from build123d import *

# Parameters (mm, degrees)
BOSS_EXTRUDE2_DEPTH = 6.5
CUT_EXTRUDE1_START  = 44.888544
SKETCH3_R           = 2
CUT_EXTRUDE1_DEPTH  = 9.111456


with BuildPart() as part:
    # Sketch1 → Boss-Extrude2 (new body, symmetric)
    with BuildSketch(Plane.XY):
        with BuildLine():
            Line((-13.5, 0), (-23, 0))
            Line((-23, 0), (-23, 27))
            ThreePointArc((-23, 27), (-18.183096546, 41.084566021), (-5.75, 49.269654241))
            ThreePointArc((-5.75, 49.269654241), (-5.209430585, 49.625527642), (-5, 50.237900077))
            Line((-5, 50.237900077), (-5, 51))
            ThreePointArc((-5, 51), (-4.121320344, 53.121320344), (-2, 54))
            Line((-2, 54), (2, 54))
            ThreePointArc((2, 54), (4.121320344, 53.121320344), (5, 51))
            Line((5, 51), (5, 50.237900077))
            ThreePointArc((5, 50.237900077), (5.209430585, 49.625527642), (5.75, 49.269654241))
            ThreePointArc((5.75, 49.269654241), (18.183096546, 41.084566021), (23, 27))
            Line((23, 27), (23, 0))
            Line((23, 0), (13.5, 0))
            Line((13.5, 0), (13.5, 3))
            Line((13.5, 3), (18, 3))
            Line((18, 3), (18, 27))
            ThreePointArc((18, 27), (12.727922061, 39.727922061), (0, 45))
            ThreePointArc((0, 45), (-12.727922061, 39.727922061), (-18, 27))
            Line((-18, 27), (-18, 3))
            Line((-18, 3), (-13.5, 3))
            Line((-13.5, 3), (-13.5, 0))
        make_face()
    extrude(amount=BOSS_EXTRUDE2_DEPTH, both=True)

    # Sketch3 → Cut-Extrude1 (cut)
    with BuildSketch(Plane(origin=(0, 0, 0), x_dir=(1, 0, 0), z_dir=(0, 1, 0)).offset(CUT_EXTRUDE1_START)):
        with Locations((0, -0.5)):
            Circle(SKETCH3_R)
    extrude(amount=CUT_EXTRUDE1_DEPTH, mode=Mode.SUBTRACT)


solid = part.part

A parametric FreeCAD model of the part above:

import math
import FreeCAD as App
import Part
import Sketcher
Q = App.Units.Quantity

doc = App.newDocument("Part")
params = doc.addObject("Spreadsheet::Sheet", "Params")
for row, (alias, value) in enumerate([
    ("sketch1_radius", "18 mm"),
    ("sketch1_radius2", "23 mm"),
    ("sketch1_radius3", "1 mm"),
    ("sketch1_radius4", "3 mm"),
    ("sketch1_width", "4 mm"),
    ("pad1_length", "13 mm"),
    ("sketch2_diameter", "4 mm"),
    ("pocket1_length", "9.111456 mm"),
], start=1):
    params.set(f"A{row}", alias)
    params.set(f"B{row}", "=" + value)
    params.setAlias(f"B{row}", alias)

body = doc.addObject("PartDesign::Body", "Body")

sketch1 = doc.addObject("Sketcher::SketchObject", "Sketch")
body.addObject(sketch1)
sketch1.AttachmentSupport = (doc.XY_Plane, [""])
sketch1.MapMode = "FlatFace"
sketch1.addGeometry(Part.LineSegment(App.Vector(-23, 0, 0), App.Vector(-13.5, 0, 0)), False)
sketch1.addGeometry(Part.LineSegment(App.Vector(-13.5, 0, 0), App.Vector(-13.5, 3, 0)), False)
sketch1.addGeometry(Part.LineSegment(App.Vector(-13.5, 3, 0), App.Vector(-18, 3, 0)), False)
sketch1.addGeometry(Part.LineSegment(App.Vector(-18, 3, 0), App.Vector(-18, 27, 0)), False)
sketch1.addGeometry(Part.ArcOfCircle(Part.Circle(App.Vector(0, 27, 0), App.Vector(0, 0, 1), 18), math.radians(90), math.radians(180)), False)
sketch1.addGeometry(Part.ArcOfCircle(Part.Circle(App.Vector(0, 27, 0), App.Vector(0, 0, 1), 18), math.radians(0), math.radians(90)), False)
sketch1.addGeometry(Part.LineSegment(App.Vector(18, 27, 0), App.Vector(18, 3, 0)), False)
sketch1.addGeometry(Part.LineSegment(App.Vector(18, 3, 0), App.Vector(13.5, 3, 0)), False)
sketch1.addGeometry(Part.LineSegment(App.Vector(13.5, 3, 0), App.Vector(13.5, 0, 0)), False)
sketch1.addGeometry(Part.LineSegment(App.Vector(13.5, 0, 0), App.Vector(23, 0, 0)), False)
sketch1.addGeometry(Part.LineSegment(App.Vector(23, 0, 0), App.Vector(23, 27, 0)), False)
sketch1.addGeometry(Part.ArcOfCircle(Part.Circle(App.Vector(0, 27, 0), App.Vector(0, 0, 1), 23), math.radians(0), math.radians(76)), False)
sketch1.addGeometry(Part.ArcOfCircle(Part.Circle(App.Vector(6, 50.2, 0), App.Vector(0, 0, 1), 1), math.radians(-180), math.radians(-104)), False)
sketch1.addGeometry(Part.LineSegment(App.Vector(5, 50.2, 0), App.Vector(5, 51, 0)), False)
sketch1.addGeometry(Part.ArcOfCircle(Part.Circle(App.Vector(2, 51, 0), App.Vector(0, 0, 1), 3), math.radians(0), math.radians(90)), False)
sketch1.addGeometry(Part.LineSegment(App.Vector(2, 54, 0), App.Vector(-2, 54, 0)), False)
sketch1.addGeometry(Part.ArcOfCircle(Part.Circle(App.Vector(-2, 51, 0), App.Vector(0, 0, 1), 3), math.radians(90), math.radians(180)), False)
sketch1.addGeometry(Part.LineSegment(App.Vector(-5, 51, 0), App.Vector(-5, 50.2, 0)), False)
sketch1.addGeometry(Part.ArcOfCircle(Part.Circle(App.Vector(-6, 50.2, 0), App.Vector(0, 0, 1), 1), math.radians(-76), math.radians(0)), False)
sketch1.addGeometry(Part.ArcOfCircle(Part.Circle(App.Vector(0, 27, 0), App.Vector(0, 0, 1), 23), math.radians(104), math.radians(180)), False)
sketch1.addGeometry(Part.LineSegment(App.Vector(-23, 27, 0), App.Vector(-23, 0, 0)), False)
sketch1.addConstraint(Sketcher.Constraint("Coincident", 0, 2, 1, 1))
sketch1.addConstraint(Sketcher.Constraint("Coincident", 1, 2, 2, 1))
sketch1.addConstraint(Sketcher.Constraint("Coincident", 2, 2, 3, 1))
sketch1.addConstraint(Sketcher.Constraint("Tangent", 3, 2, 4, 2))
sketch1.addConstraint(Sketcher.Constraint("Tangent", 4, 1, 5, 2))
sketch1.addConstraint(Sketcher.Constraint("Tangent", 5, 1, 6, 1))
sketch1.addConstraint(Sketcher.Constraint("Coincident", 6, 2, 7, 1))
sketch1.addConstraint(Sketcher.Constraint("Coincident", 7, 2, 8, 1))
sketch1.addConstraint(Sketcher.Constraint("Coincident", 8, 2, 9, 1))
sketch1.addConstraint(Sketcher.Constraint("Coincident", 9, 2, 10, 1))
sketch1.addConstraint(Sketcher.Constraint("Tangent", 10, 2, 11, 1))
sketch1.addConstraint(Sketcher.Constraint("Tangent", 11, 2, 12, 2))
sketch1.addConstraint(Sketcher.Constraint("Tangent", 12, 1, 13, 1))
sketch1.addConstraint(Sketcher.Constraint("Tangent", 13, 2, 14, 1))
sketch1.addConstraint(Sketcher.Constraint("Tangent", 14, 2, 15, 1))
sketch1.addConstraint(Sketcher.Constraint("Tangent", 15, 2, 16, 1))
sketch1.addConstraint(Sketcher.Constraint("Tangent", 16, 2, 17, 1))
sketch1.addConstraint(Sketcher.Constraint("Tangent", 17, 2, 18, 2))
sketch1.addConstraint(Sketcher.Constraint("Tangent", 18, 1, 19, 1))
sketch1.addConstraint(Sketcher.Constraint("Tangent", 19, 2, 20, 1))
sketch1.addConstraint(Sketcher.Constraint("Coincident", 20, 2, 0, 1))
sketch1.addConstraint(Sketcher.Constraint("Horizontal", 0))
sketch1.addConstraint(Sketcher.Constraint("Vertical", 1))
sketch1.addConstraint(Sketcher.Constraint("Horizontal", 2))
sketch1.addConstraint(Sketcher.Constraint("Vertical", 3))
sketch1.addConstraint(Sketcher.Constraint("Vertical", 6))
sketch1.addConstraint(Sketcher.Constraint("Horizontal", 7))
sketch1.addConstraint(Sketcher.Constraint("Vertical", 8))
sketch1.addConstraint(Sketcher.Constraint("Horizontal", 9))
sketch1.addConstraint(Sketcher.Constraint("Vertical", 10))
sketch1.addConstraint(Sketcher.Constraint("Vertical", 13))
sketch1.addConstraint(Sketcher.Constraint("Horizontal", 15))
sketch1.addConstraint(Sketcher.Constraint("Vertical", 17))
sketch1.addConstraint(Sketcher.Constraint("Vertical", 20))
sketch1.addConstraint(Sketcher.Constraint("Coincident", 11, 3, 4, 3))
sketch1.addConstraint(Sketcher.Constraint("Coincident", 19, 3, 4, 3))
sketch1.addConstraint(Sketcher.Constraint("Equal", 4, 5))
sketch1.addConstraint(Sketcher.Constraint("Equal", 14, 16))
sketch1.addConstraint(Sketcher.Constraint("Equal", 12, 18))
sketch1.addConstraint(Sketcher.Constraint("Equal", 11, 19))
sketch1.addConstraint(Sketcher.Constraint("Symmetric", 0, 2, 8, 2, -1, 1))
sketch1.addConstraint(Sketcher.Constraint("Symmetric", 12, 3, 18, 3, -2))
sketch1.addConstraint(Sketcher.Constraint("PointOnObject", 0, 2, -1))
sketch1.addConstraint(Sketcher.Constraint("PointOnObject", 4, 1, -2))
sketch1.addConstraint(Sketcher.Constraint("Horizontal", 2, 2, 6, 2))
sketch1.addConstraint(Sketcher.Constraint("Radius", 4, Q("18 mm")))
sketch1.addConstraint(Sketcher.Constraint("Radius", 11, Q("23 mm")))
sketch1.addConstraint(Sketcher.Constraint("Radius", 12, Q("1 mm")))
sketch1.addConstraint(Sketcher.Constraint("Radius", 14, Q("3 mm")))
sketch1.addConstraint(Sketcher.Constraint("DistanceX", 15, 2, 15, 1, Q("4 mm")))
sketch1.addConstraint(Sketcher.Constraint("DistanceY", 1, 1, 1, 2, Q("3 mm")))
sketch1.addConstraint(Sketcher.Constraint("DistanceY", 3, 1, 3, 2, Q("24 mm")))
sketch1.addConstraint(Sketcher.Constraint("DistanceX", 0, 1, 0, 2, Q("9.5 mm")))
sketch1.addConstraint(Sketcher.Constraint("DistanceY", -1, 1, 14, 3, Q("51 mm")))
sketch1.setExpression("Constraints[45]", "Params.sketch1_radius")
sketch1.setExpression("Constraints[46]", "Params.sketch1_radius2")
sketch1.setExpression("Constraints[47]", "Params.sketch1_radius3")
sketch1.setExpression("Constraints[48]", "Params.sketch1_radius4")
sketch1.setExpression("Constraints[49]", "Params.sketch1_width")
pad1 = doc.addObject("PartDesign::Pad", "Pad")
body.addObject(pad1)
pad1.Profile = sketch1
pad1.setExpression("Length", "Params.pad1_length")
pad1.Midplane = True

sketch2 = doc.addObject("Sketcher::SketchObject", "Sketch001")
body.addObject(sketch2)
sketch2.AttachmentSupport = (doc.XZ_Plane, [""])
sketch2.MapMode = "FlatFace"
sketch2.AttachmentOffset = App.Placement(App.Vector(0, 0, -44.888544), App.Rotation())
sketch2.addGeometry(Part.Circle(App.Vector(0, 0.5, 0), App.Vector(0, 0, 1), 2), False)
sketch2.addConstraint(Sketcher.Constraint("PointOnObject", 0, 3, -2))
sketch2.addConstraint(Sketcher.Constraint("Diameter", 0, Q("4 mm")))
sketch2.addConstraint(Sketcher.Constraint("DistanceY", -1, 1, 0, 3, Q("0.5 mm")))
sketch2.setExpression("Constraints[1]", "Params.sketch2_diameter")
pocket1 = doc.addObject("PartDesign::Pocket", "Pocket")
body.addObject(pocket1)
pocket1.Profile = sketch2
pocket1.setExpression("Length", "Params.pocket1_length")

doc.recompute()
